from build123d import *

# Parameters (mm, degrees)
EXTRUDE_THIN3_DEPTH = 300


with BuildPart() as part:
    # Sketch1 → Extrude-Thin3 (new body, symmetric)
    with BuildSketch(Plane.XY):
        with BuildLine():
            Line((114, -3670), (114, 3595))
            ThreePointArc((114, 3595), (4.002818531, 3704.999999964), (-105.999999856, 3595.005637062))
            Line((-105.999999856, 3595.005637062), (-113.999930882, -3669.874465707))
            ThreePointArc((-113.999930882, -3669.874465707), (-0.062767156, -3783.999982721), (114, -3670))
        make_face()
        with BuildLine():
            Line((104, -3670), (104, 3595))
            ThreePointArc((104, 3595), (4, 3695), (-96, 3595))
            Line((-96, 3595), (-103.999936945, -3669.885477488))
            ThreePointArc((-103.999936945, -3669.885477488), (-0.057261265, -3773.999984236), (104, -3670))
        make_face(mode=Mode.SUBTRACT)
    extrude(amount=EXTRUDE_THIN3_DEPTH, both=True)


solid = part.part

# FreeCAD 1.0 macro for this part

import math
import FreeCAD as App
import Part
import Sketcher

doc = App.newDocument("Part")
body = doc.addObject("PartDesign::Body", "Body")

# Sketch on XY plane
sketch1 = doc.addObject("Sketcher::SketchObject", "Sketch")
body.addObject(sketch1)
sketch1.AttachmentSupport = (doc.XY_Plane, [""])
sketch1.MapMode = "FlatFace"
sketch1.addGeometry(Part.LineSegment(App.Vector(114, -3670, 0), App.Vector(114, 3595, 0)), False)
sketch1.addGeometry(Part.ArcOfCircle(Part.Circle(App.Vector(4, 3595, 0), App.Vector(0, 0, 1), 110), math.radians(0), math.radians(180)), False)
sketch1.addGeometry(Part.LineSegment(App.Vector(-106, 3595, 0), App.Vector(-114, -3670, 0)), False)
sketch1.addGeometry(Part.ArcOfCircle(Part.Circle(App.Vector(0, -3670, 0), App.Vector(0, 0, 1), 114), math.radians(180), math.radians(360)), False)
sketch1.addGeometry(Part.LineSegment(App.Vector(104, 3595, 0), App.Vector(104, -3670, 0)), False)
sketch1.addGeometry(Part.ArcOfCircle(Part.Circle(App.Vector(0, -3670, 0), App.Vector(0, 0, 1), 104), math.radians(180), math.radians(360)), False)
sketch1.addGeometry(Part.LineSegment(App.Vector(-104, -3670, 0), App.Vector(-96, 3595, 0)), False)
sketch1.addGeometry(Part.ArcOfCircle(Part.Circle(App.Vector(4, 3595, 0), App.Vector(0, 0, 1), 100), math.radians(0), math.radians(180)), False)
sketch1.addConstraint(Sketcher.Constraint("Tangent", 0, 2, 1, 1))
sketch1.addConstraint(Sketcher.Constraint("Coincident", 1, 2, 2, 1))
sketch1.addConstraint(Sketcher.Constraint("Tangent", 2, 2, 3, 1))
sketch1.addConstraint(Sketcher.Constraint("Tangent", 3, 2, 0, 1))
sketch1.addConstraint(Sketcher.Constraint("Tangent", 4, 2, 5, 2))
sketch1.addConstraint(Sketcher.Constraint("Tangent", 5, 1, 6, 1))
sketch1.addConstraint(Sketcher.Constraint("Coincident", 6, 2, 7, 2))
sketch1.addConstraint(Sketcher.Constraint("Tangent", 7, 1, 4, 1))
sketch1.addConstraint(Sketcher.Constraint("Vertical", 0))
sketch1.addConstraint(Sketcher.Constraint("Vertical", 4))
sketch1.addConstraint(Sketcher.Constraint("Coincident", 5, 3, 3, 3))
sketch1.addConstraint(Sketcher.Constraint("Coincident", 7, 3, 1, 3))
sketch1.addConstraint(Sketcher.Constraint("PointOnObject", 3, 3, -2))
sketch1.addConstraint(Sketcher.Constraint("Horizontal", 0, 2, 6, 2))
sketch1.addConstraint(Sketcher.Constraint("Radius", 1, 110.0))
sketch1.addConstraint(Sketcher.Constraint("Radius", 3, 114.0))
sketch1.addConstraint(Sketcher.Constraint("Radius", 5, 104.0))
sketch1.addConstraint(Sketcher.Constraint("DistanceY", 0, 1, 0, 2, 7265.0))
sketch1.addConstraint(Sketcher.Constraint("DistanceY", -1, 1, 1, 3, 3595.0))
sketch1.addConstraint(Sketcher.Constraint("Distance", 2, 7264.884507))
pad1 = doc.addObject("PartDesign::Pad", "Pad")
body.addObject(pad1)
pad1.Profile = sketch1
pad1.Length = 600
pad1.Midplane = True

doc.recompute()
